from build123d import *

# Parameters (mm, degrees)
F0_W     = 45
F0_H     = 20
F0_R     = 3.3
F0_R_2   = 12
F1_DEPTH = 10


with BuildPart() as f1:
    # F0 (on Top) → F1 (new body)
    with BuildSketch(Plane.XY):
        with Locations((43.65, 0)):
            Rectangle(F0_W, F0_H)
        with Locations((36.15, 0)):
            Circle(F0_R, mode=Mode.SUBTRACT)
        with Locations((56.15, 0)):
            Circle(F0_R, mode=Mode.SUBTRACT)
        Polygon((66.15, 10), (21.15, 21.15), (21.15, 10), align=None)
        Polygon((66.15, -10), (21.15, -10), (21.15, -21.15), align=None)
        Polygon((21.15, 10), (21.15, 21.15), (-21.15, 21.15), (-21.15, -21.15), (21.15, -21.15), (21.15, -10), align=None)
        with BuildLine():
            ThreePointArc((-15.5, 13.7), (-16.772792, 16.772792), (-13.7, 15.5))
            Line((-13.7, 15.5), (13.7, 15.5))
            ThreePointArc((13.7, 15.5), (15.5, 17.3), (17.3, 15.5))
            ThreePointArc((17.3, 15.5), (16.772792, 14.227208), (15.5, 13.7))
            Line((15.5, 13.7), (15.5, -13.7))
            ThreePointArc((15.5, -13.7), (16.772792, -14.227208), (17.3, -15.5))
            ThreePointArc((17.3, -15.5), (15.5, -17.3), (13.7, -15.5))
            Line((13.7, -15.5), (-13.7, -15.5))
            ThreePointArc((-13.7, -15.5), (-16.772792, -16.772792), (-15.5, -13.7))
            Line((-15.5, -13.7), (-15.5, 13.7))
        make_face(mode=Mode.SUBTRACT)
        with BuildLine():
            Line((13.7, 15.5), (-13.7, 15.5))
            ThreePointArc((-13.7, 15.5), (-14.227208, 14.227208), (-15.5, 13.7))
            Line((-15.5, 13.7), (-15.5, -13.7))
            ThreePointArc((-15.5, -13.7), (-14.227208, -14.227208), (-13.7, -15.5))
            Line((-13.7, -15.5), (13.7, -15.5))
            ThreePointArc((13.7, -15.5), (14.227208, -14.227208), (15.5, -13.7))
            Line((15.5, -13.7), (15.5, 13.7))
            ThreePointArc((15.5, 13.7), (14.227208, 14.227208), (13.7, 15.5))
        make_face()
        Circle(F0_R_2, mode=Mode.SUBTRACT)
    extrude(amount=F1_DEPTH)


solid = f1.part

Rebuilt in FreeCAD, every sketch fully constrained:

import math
import FreeCAD as App
import Part
import Sketcher

V = App.Vector
Q = App.Units.Quantity

doc = App.newDocument("Part")
params = doc.addObject("Spreadsheet::Sheet", "Params")
for row, (alias, value) in enumerate([
    ("sketch1_diameter", "24 mm"),
    ("sketch1_diameter2", "6.6 mm"),
    ("sketch1_radius", "1.8 mm"),
    ("sketch1_height", "20 mm"),
    ("sketch1_width", "42.3 mm"),
    ("pad1_length", "10 mm"),
], start=1):
    params.set(f"A{row}", alias)
    params.set(f"B{row}", "=" + value)
    params.setAlias(f"B{row}", alias)

body = doc.addObject("PartDesign::Body", "Body")

# Sketch on XY plane
sketch1 = body.newObject("Sketcher::SketchObject", "Sketch")
sketch1.AttachmentSupport = (doc.getObject("XY_Plane"), [""])
sketch1.MapMode = "FlatFace"
sketch1.addGeometry([
    Part.LineSegment(V(66.2, -10, 0), V(66.2, 10, 0)),  # 0
    Part.LineSegment(V(66.2, 10, 0), V(21.1, 21.1, 0)),  # 1
    Part.LineSegment(V(21.1, 21.1, 0), V(-21.1, 21.1, 0)),  # 2
    Part.LineSegment(V(-21.1, 21.1, 0), V(-21.1, -21.1, 0)),  # 3
    Part.LineSegment(V(-21.1, -21.1, 0), V(21.1, -21.1, 0)),  # 4
    Part.LineSegment(V(21.1, -21.1, 0), V(66.2, -10, 0)),  # 5
    Part.ArcOfCircle(Part.Circle(V(-15.5, -15.5, 0), V(0, 0, 1), 1.8), math.radians(90), math.radians(360)),  # 6
    Part.ArcOfCircle(Part.Circle(V(-15.5, -15.5, 0), V(0, 0, 1), 1.8), math.radians(0), math.radians(90)),  # 7
    Part.ArcOfCircle(Part.Circle(V(15.5, -15.5, 0), V(0, 0, 1), 1.8), math.radians(180), math.radians(360)),  # 8
    Part.ArcOfCircle(Part.Circle(V(15.5, -15.5, 0), V(0, 0, 1), 1.8), math.radians(90), math.radians(180)),  # 9
    Part.ArcOfCircle(Part.Circle(V(15.5, -15.5, 0), V(0, 0, 1), 1.8), math.radians(0), math.radians(90)),  # 10
    Part.Circle(V(0, 0, 0), V(0, 0, 1), 12),  # 11
    Part.ArcOfCircle(Part.Circle(V(-15.5, 15.5, 0), V(0, 0, 1), 1.8), math.radians(0), math.radians(270)),  # 12
    Part.ArcOfCircle(Part.Circle(V(-15.5, 15.5, 0), V(0, 0, 1), 1.8), math.radians(-90), math.radians(0)),  # 13
    Part.ArcOfCircle(Part.Circle(V(15.5, 15.5, 0), V(0, 0, 1), 1.8), math.radians(-90), math.radians(0)),  # 14
    Part.ArcOfCircle(Part.Circle(V(15.5, 15.5, 0), V(0, 0, 1), 1.8), math.radians(-180), math.radians(-90)),  # 15
    Part.ArcOfCircle(Part.Circle(V(15.5, 15.5, 0), V(0, 0, 1), 1.8), math.radians(0), math.radians(180)),  # 16
    Part.Circle(V(36.1, 0, 0), V(0, 0, 1), 3.3),  # 17
    Part.Circle(V(56.1, 0, 0), V(0, 0, 1), 3.3),  # 18
], False)
sketch1.addConstraint([
    Sketcher.Constraint("Coincident", 0, 2, 1, 1),
    Sketcher.Constraint("Coincident", 1, 2, 2, 1),
    Sketcher.Constraint("Coincident", 2, 2, 3, 1),
    Sketcher.Constraint("Coincident", 3, 2, 4, 1),
    Sketcher.Constraint("Coincident", 4, 2, 5, 1),
    Sketcher.Constraint("Coincident", 5, 2, 0, 1),
    Sketcher.Constraint("Tangent", 6, 1, 7, 2),
    Sketcher.Constraint("Coincident", 7, 1, 6, 2),
    Sketcher.Constraint("Tangent", 8, 1, 9, 2),
    Sketcher.Constraint("Tangent", 9, 1, 10, 2),
    Sketcher.Constraint("Tangent", 10, 1, 8, 2),
    Sketcher.Constraint("Tangent", 12, 1, 13, 2),
    Sketcher.Constraint("Coincident", 13, 1, 12, 2),
    Sketcher.Constraint("Tangent", 14, 1, 15, 2),
    Sketcher.Constraint("Tangent", 15, 1, 16, 2),
    Sketcher.Constraint("Tangent", 16, 1, 14, 2),
    Sketcher.Constraint("Vertical", 0),
    Sketcher.Constraint("Horizontal", 2),
    Sketcher.Constraint("Vertical", 3),
    Sketcher.Constraint("Horizontal", 4),
    Sketcher.Constraint("Coincident", 11, 3, -1, 1),
    Sketcher.Constraint("Equal", 7, 8),
    Sketcher.Constraint("Equal", 10, 12),
    Sketcher.Constraint("Equal", 13, 14),
    Sketcher.Constraint("Equal", 17, 18),
    Sketcher.Constraint("Symmetric", 8, 3, 12, 3, -1, 1),
    Sketcher.Constraint("Symmetric", 6, 3, 14, 3, -1, 1),
    Sketcher.Constraint("Symmetric", 1, 2, 3, 2, -1, 1),
    Sketcher.Constraint("Symmetric", 6, 3, 8, 3, -2),
    Sketcher.Constraint("PointOnObject", 17, 3, -1),
    Sketcher.Constraint("PointOnObject", 18, 3, -1),
    Sketcher.Constraint("Horizontal", 10, 3, 7, 1),
    Sketcher.Constraint("Horizontal", 7, 1, 8, 1),
    Sketcher.Constraint("Horizontal", 8, 1, 10, 1),
    Sketcher.Constraint("Horizontal", 16, 3, 12, 1),
    Sketcher.Constraint("Horizontal", 12, 1, 15, 1),
    Sketcher.Constraint("Horizontal", 15, 1, 16, 1),
    Sketcher.Constraint("Vertical", 1, 2, 4, 2),
    Sketcher.Constraint("Vertical", 13, 3, 6, 1),
    Sketcher.Constraint("Vertical", 16, 3, 9, 1),
    Sketcher.Constraint("Vertical", 6, 1, 13, 1),
    Sketcher.Constraint("Vertical", 9, 1, 14, 1),
    Sketcher.Constraint("Equal", 4, 3),
    Sketcher.Constraint("Equal", 1, 5),
    Sketcher.Constraint("Diameter", 11, Q("24 mm")),
    Sketcher.Constraint("Diameter", 17, Q("6.6 mm")),
    Sketcher.Constraint("Radius", 6, Q("1.8 mm")),
    Sketcher.Constraint("DistanceY", 0, 1, 0, 2, Q("20 mm")),
    Sketcher.Constraint("DistanceX", 2, 2, 2, 1, Q("42.3 mm")),
    Sketcher.Constraint("DistanceX", 6, 3, 8, 3, Q("31 mm")),
    Sketcher.Constraint("DistanceY", 6, 3, 12, 3, Q("31 mm")),
    Sketcher.Constraint("DistanceX", 17, 3, 18, 3, Q("20 mm")),
    Sketcher.Constraint("DistanceX", 18, 3, 0, 2, Q("10 mm")),
    Sketcher.Constraint("DistanceX", 1, 2, 17, 3, Q("15 mm")),
])
sketch1.setExpression("Constraints[44]", "Params.sketch1_diameter")
sketch1.setExpression("Constraints[45]", "Params.sketch1_diameter2")
sketch1.setExpression("Constraints[46]", "Params.sketch1_radius")
sketch1.setExpression("Constraints[47]", "Params.sketch1_height")
sketch1.setExpression("Constraints[48]", "Params.sketch1_width")
pad1 = body.newObject("PartDesign::Pad", "Pad")
pad1.Profile = sketch1
pad1.setExpression("Length", "Params.pad1_length")

doc.recompute()
